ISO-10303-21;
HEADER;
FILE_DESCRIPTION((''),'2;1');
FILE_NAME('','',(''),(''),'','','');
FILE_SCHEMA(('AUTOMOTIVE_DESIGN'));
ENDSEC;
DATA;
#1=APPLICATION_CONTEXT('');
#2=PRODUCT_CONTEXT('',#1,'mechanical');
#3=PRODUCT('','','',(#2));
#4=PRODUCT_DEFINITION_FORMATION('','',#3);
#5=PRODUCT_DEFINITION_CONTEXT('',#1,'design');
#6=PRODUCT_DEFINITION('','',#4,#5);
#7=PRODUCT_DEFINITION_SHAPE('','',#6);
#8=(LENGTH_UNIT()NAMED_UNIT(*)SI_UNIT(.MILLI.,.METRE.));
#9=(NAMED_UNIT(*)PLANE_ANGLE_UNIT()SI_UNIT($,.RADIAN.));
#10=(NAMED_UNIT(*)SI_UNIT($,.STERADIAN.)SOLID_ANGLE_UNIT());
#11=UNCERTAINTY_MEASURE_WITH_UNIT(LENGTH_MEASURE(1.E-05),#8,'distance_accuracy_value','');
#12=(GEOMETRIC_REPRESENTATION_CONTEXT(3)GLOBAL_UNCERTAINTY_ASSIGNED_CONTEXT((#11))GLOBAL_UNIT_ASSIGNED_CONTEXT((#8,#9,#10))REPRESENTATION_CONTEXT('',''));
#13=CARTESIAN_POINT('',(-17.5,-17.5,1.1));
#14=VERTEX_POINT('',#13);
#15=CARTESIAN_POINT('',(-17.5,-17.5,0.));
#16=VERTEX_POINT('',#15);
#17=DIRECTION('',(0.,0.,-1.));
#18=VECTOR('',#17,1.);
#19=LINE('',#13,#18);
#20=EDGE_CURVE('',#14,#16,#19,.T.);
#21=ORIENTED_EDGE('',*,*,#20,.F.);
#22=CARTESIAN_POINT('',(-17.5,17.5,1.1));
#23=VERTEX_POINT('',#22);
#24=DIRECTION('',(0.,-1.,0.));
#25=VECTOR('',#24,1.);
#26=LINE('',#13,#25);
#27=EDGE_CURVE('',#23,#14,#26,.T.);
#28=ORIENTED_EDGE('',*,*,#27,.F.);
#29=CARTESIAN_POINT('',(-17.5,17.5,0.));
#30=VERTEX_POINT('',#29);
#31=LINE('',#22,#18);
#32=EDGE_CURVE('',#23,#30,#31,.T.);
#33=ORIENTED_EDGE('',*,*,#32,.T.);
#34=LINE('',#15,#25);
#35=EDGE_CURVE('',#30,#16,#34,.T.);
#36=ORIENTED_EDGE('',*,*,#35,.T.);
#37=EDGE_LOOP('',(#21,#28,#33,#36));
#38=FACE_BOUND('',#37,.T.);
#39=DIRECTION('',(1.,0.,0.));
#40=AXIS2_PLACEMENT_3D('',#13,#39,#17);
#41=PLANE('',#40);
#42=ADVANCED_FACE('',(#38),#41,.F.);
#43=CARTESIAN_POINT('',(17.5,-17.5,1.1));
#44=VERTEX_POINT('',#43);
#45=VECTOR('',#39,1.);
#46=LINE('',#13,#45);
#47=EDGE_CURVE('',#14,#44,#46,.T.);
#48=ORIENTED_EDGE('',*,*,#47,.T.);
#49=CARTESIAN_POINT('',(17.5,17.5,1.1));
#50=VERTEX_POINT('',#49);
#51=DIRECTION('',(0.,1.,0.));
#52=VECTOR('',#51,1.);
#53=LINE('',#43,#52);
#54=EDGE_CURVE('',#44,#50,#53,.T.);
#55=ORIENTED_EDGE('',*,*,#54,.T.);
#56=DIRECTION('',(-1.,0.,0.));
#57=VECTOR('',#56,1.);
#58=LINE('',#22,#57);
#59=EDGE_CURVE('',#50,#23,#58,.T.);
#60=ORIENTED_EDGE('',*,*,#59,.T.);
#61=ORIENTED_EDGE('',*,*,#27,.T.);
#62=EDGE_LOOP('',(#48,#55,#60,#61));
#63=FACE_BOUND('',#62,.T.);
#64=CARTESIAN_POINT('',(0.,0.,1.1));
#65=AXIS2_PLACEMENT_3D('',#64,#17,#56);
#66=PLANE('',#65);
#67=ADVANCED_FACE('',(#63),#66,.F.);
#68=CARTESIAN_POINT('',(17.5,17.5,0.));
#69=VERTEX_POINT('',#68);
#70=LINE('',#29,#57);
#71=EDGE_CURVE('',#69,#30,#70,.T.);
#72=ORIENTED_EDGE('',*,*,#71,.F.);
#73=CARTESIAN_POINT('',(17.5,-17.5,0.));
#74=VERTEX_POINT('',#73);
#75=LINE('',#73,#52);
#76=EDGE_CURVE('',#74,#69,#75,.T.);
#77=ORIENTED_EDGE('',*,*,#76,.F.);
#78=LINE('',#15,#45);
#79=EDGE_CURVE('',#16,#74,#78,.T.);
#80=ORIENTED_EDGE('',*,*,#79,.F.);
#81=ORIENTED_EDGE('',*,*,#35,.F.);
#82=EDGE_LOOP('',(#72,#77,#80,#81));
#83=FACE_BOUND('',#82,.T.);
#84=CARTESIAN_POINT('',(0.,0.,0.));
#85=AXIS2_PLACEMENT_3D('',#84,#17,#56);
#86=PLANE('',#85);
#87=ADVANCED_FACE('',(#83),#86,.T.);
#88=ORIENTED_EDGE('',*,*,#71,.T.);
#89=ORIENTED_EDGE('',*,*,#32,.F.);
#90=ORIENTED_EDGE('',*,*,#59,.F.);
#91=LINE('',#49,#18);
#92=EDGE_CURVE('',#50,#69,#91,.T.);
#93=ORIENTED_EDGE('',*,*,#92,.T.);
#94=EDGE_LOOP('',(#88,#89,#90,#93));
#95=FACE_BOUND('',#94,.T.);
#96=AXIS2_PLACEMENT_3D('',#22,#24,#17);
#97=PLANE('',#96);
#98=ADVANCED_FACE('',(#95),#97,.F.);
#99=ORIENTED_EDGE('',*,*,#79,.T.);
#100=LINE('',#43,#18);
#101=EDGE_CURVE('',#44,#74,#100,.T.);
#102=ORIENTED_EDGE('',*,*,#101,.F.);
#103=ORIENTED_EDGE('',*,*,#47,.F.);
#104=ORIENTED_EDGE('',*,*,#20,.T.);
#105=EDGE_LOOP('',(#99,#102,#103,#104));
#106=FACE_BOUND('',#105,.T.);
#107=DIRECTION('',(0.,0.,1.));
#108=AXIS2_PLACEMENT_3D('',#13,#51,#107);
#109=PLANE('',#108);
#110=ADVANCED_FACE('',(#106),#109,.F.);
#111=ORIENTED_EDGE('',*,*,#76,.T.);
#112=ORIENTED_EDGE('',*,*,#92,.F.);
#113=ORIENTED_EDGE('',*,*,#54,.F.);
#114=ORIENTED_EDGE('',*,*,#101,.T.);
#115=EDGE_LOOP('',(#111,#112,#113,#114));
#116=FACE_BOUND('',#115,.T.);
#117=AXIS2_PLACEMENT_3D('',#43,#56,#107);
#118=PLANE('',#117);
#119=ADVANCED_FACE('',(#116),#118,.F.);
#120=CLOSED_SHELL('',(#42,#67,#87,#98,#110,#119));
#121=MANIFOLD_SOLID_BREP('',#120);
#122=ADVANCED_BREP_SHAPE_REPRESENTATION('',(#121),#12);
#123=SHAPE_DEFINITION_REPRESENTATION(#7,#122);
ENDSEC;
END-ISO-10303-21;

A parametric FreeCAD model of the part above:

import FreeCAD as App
import Part
import Sketcher


def add_polygon(sketch, points):
    """Adds a closed chain of lines whose ends are joined by coincident constraints."""
    first, n = sketch.GeometryCount, len(points)
    for a, b in zip(points, points[1:] + points[:1]):
        sketch.addGeometry(Part.LineSegment(App.Vector(*a, 0), App.Vector(*b, 0)), False)
    for i in range(n):
        sketch.addConstraint(Sketcher.Constraint("Coincident", first + i, 2, first + (i + 1) % n, 1))

doc = App.newDocument("Part")
body = doc.addObject("PartDesign::Body", "Body")

# Sketch on XY plane
sketch1 = body.newObject("Sketcher::SketchObject", "Sketch")
sketch1.AttachmentSupport = (doc.getObject("XY_Plane"), [""])
sketch1.MapMode = "FlatFace"
add_polygon(sketch1, [(-18, 18), (-18, -18), (18, -18), (18, 18)])  # lines 0-3
sketch1.addConstraint(Sketcher.Constraint("Vertical", 0))
sketch1.addConstraint(Sketcher.Constraint("Horizontal", 1))
sketch1.addConstraint(Sketcher.Constraint("Vertical", 2))
sketch1.addConstraint(Sketcher.Constraint("Horizontal", 3))
sketch1.addConstraint(Sketcher.Constraint("Symmetric", 0, 2, 2, 2, -1, 1))
sketch1.addConstraint(Sketcher.Constraint("Equal", 3, 0))
sketch1.addConstraint(Sketcher.Constraint("DistanceX", 1, 1, 1, 2, 35.0))
pad1 = body.newObject("PartDesign::Pad", "Pad")
pad1.Profile = sketch1
pad1.Length = 1.1

doc.recompute()
